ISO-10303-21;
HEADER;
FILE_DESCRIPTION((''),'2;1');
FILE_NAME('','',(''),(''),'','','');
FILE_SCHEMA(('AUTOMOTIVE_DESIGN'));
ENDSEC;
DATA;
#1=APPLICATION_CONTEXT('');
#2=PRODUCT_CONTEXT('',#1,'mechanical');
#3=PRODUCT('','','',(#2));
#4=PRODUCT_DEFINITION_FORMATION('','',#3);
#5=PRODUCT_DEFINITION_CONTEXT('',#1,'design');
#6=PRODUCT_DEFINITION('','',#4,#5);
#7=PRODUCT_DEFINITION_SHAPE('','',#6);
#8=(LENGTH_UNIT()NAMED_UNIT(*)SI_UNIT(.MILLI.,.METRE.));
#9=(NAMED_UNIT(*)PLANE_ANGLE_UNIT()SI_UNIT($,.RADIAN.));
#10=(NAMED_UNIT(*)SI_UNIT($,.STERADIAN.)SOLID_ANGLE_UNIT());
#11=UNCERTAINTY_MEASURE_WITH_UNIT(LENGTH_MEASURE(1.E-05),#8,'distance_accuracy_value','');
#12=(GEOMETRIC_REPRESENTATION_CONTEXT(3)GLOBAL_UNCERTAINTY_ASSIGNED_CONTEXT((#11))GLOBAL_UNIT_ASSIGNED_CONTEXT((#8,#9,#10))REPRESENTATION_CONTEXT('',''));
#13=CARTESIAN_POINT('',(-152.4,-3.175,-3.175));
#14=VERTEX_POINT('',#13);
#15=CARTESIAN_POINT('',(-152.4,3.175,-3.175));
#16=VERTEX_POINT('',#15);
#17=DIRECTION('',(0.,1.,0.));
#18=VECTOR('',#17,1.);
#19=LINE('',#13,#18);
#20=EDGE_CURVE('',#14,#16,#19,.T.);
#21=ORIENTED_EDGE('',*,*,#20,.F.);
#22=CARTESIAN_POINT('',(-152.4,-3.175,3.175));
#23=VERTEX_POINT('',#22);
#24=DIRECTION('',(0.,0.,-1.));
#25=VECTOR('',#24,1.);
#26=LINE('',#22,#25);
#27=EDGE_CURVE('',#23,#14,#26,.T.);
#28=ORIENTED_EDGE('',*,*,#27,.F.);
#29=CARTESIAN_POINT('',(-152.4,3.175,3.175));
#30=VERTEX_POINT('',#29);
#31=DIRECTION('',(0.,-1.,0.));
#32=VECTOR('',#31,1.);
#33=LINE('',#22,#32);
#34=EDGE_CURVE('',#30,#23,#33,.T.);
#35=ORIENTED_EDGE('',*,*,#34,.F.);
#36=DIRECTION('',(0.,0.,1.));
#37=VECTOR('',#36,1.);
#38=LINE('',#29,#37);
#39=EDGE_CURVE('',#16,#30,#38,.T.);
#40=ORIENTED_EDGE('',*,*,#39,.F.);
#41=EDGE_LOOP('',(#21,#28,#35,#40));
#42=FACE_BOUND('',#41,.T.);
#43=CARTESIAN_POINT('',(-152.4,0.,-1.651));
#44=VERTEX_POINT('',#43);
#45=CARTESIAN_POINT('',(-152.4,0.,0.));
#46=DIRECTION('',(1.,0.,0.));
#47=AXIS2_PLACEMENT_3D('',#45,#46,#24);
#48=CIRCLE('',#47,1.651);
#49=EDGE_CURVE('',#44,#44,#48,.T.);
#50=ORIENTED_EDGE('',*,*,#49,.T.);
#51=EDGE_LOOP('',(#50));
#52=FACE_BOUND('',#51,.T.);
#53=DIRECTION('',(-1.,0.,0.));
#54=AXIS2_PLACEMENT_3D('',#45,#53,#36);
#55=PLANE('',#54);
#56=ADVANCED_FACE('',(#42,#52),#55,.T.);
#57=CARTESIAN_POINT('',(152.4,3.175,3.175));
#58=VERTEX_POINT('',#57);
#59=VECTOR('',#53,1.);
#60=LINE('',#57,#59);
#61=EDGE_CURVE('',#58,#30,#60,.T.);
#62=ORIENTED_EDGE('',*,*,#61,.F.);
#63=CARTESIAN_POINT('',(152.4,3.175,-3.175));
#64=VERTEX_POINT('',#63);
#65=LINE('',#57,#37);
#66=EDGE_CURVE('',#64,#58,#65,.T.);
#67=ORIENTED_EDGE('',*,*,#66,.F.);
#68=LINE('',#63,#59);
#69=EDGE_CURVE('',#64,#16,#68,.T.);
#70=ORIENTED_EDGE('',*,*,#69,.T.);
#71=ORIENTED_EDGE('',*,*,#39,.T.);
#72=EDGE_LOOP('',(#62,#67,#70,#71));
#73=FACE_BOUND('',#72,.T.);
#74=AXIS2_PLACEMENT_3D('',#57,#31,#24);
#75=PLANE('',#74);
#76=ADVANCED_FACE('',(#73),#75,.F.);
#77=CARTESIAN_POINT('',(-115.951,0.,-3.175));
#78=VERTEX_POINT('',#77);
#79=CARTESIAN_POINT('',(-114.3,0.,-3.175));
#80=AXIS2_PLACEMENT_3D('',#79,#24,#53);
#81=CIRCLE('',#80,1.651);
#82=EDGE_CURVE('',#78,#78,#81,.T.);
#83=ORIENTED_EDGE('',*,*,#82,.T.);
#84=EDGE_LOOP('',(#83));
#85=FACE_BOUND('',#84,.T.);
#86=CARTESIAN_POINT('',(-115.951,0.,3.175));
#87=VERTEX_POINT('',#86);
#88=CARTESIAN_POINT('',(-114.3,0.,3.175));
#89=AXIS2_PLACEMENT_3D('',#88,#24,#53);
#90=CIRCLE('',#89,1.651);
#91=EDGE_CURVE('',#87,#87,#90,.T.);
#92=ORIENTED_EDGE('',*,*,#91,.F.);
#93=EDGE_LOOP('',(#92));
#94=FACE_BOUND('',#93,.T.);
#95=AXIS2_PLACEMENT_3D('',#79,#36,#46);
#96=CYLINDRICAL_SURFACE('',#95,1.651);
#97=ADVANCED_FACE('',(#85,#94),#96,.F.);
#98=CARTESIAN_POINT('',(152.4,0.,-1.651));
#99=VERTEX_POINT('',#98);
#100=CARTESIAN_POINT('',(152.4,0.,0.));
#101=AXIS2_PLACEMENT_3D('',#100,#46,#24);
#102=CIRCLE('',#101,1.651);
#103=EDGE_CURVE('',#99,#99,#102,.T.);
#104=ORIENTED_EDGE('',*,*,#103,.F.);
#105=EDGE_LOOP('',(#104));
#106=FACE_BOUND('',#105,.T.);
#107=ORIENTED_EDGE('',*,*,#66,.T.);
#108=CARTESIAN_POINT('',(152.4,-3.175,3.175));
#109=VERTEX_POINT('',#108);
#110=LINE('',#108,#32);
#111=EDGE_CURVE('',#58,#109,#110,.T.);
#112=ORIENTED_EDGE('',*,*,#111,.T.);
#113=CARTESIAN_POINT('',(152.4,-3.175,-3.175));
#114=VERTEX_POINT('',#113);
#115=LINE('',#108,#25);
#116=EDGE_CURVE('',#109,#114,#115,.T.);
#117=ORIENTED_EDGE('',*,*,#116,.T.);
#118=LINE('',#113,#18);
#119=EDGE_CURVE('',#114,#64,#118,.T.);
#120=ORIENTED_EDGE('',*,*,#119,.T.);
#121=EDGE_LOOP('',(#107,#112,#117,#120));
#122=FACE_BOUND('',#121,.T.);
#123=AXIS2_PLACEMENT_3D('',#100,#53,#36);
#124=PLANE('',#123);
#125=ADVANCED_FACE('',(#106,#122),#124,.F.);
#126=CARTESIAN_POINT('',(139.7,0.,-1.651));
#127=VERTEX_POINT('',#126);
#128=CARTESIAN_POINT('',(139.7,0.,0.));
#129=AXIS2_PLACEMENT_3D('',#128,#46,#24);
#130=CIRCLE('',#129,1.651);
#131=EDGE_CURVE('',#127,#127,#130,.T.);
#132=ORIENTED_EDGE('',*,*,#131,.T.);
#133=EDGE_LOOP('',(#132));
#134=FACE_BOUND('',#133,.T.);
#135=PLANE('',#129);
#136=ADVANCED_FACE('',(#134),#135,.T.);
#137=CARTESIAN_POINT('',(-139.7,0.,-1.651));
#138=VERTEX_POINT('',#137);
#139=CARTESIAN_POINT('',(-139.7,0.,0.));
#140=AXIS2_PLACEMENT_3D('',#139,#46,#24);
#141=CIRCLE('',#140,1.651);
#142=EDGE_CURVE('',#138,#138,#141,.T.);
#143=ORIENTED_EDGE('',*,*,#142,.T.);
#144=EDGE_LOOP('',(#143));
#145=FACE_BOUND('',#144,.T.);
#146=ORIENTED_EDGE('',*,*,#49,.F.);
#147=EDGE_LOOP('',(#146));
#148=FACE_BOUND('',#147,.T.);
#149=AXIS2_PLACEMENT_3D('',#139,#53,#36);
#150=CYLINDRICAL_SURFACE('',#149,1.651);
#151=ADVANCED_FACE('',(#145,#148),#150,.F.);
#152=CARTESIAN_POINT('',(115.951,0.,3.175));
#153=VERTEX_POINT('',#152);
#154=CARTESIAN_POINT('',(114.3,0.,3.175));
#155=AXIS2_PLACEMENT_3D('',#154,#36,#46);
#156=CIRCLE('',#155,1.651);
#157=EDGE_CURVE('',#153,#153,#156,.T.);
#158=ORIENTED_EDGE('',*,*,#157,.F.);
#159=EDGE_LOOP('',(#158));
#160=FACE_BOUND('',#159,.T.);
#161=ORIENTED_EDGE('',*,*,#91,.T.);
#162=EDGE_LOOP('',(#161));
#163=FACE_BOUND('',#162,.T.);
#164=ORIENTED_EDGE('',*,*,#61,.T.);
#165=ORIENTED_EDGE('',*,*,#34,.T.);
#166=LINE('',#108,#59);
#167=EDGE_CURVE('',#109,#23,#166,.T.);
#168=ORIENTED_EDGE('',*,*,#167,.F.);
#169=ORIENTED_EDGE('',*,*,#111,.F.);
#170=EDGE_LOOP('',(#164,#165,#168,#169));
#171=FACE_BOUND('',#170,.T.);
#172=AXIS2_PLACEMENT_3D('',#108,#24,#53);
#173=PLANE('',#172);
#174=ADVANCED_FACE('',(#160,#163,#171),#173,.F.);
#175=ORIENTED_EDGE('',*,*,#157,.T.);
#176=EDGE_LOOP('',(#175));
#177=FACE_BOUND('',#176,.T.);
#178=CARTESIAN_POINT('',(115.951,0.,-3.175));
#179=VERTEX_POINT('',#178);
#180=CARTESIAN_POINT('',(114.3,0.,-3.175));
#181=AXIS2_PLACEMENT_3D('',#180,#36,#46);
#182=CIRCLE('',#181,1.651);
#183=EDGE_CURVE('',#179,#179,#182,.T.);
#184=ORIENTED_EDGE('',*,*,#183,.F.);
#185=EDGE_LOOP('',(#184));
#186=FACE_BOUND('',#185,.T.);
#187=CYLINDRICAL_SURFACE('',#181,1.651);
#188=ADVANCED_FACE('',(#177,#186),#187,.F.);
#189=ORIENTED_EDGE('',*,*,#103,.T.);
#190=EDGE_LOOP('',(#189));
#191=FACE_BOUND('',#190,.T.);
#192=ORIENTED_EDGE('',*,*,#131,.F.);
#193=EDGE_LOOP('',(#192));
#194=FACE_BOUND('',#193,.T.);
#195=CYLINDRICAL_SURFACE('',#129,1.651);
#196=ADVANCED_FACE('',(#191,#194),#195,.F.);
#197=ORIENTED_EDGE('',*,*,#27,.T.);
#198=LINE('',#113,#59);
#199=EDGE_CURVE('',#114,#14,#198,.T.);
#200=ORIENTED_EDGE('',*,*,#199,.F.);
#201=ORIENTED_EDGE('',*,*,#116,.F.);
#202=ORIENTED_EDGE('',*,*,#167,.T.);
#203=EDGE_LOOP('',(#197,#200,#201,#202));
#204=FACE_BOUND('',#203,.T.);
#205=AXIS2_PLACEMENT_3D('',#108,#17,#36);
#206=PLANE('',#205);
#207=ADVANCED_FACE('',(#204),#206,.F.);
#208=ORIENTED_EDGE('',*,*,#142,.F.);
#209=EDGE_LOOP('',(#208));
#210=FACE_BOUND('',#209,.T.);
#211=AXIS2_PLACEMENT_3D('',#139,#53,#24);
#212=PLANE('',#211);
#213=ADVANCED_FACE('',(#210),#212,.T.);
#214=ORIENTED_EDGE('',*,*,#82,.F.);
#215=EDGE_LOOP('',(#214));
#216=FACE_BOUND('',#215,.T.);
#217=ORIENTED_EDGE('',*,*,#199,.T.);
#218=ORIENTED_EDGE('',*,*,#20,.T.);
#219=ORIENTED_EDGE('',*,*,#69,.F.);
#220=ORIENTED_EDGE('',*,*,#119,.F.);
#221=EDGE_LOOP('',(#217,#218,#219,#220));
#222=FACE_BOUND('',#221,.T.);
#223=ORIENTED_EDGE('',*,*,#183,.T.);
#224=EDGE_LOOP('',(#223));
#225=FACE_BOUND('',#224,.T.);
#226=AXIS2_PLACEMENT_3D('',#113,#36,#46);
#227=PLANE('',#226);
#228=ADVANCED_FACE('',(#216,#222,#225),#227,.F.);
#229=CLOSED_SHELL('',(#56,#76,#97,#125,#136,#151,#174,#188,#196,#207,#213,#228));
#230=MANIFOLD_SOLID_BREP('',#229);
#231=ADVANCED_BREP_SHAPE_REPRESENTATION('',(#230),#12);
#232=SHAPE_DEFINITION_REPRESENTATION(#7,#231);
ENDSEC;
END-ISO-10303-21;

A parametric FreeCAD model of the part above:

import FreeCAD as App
import Part
import Sketcher
Q = App.Units.Quantity

doc = App.newDocument("Part")
body = doc.addObject("PartDesign::Body", "Body")

sketch1 = body.newObject("Sketcher::SketchObject", "Sketch")
sketch1.AttachmentSupport = (doc.getObject("YZ_Plane"), [""])
sketch1.MapMode = "FlatFace"
sketch1.addGeometry(Part.LineSegment(App.Vector(3, 3, 0), App.Vector(-3, 3, 0)), False)
sketch1.addGeometry(Part.LineSegment(App.Vector(-3, 3, 0), App.Vector(-3, -3, 0)), False)
sketch1.addGeometry(Part.LineSegment(App.Vector(-3, -3, 0), App.Vector(3, -3, 0)), False)
sketch1.addGeometry(Part.LineSegment(App.Vector(3, -3, 0), App.Vector(3, 3, 0)), False)
sketch1.addConstraint(Sketcher.Constraint("Coincident", 0, 2, 1, 1))
sketch1.addConstraint(Sketcher.Constraint("Coincident", 1, 2, 2, 1))
sketch1.addConstraint(Sketcher.Constraint("Coincident", 2, 2, 3, 1))
sketch1.addConstraint(Sketcher.Constraint("Coincident", 3, 2, 0, 1))
sketch1.addConstraint(Sketcher.Constraint("Horizontal", 0))
sketch1.addConstraint(Sketcher.Constraint("Vertical", 1))
sketch1.addConstraint(Sketcher.Constraint("Horizontal", 2))
sketch1.addConstraint(Sketcher.Constraint("Vertical", 3))
sketch1.addConstraint(Sketcher.Constraint("Symmetric", 0, 2, 2, 2, -1, 1))
sketch1.addConstraint(Sketcher.Constraint("Equal", 2, 1))
sketch1.addConstraint(Sketcher.Constraint("DistanceX", 0, 2, 0, 1, Q("0.25 in")))
pad1 = body.newObject("PartDesign::Pad", "Pad")
pad1.Profile = sketch1
pad1.Length = Q("12 in")
pad1.Midplane = True

sketch2 = body.newObject("Sketcher::SketchObject", "Sketch001")
sketch2.AttachmentSupport = (doc.getObject("YZ_Plane"), [""])
sketch2.MapMode = "FlatFace"
sketch2.AttachmentOffset = App.Placement(App.Vector(0, 0, 6 * 25.4), App.Rotation())
sketch2.addGeometry(Part.Circle(App.Vector(0, 0, 0), App.Vector(0, 0, 1), 1.7), False)
sketch2.addConstraint(Sketcher.Constraint("Coincident", 0, 3, -1, 1))
sketch2.addConstraint(Sketcher.Constraint("Diameter", 0, Q("0.13 in")))
pocket1 = body.newObject("PartDesign::Pocket", "Pocket")
pocket1.Profile = sketch2
pocket1.Length = Q("0.5 in")

sketch3 = body.newObject("Sketcher::SketchObject", "Sketch002")
sketch3.AttachmentSupport = (doc.getObject("XY_Plane"), [""])
sketch3.MapMode = "FlatFace"
sketch3.AttachmentOffset = App.Placement(App.Vector(0, 0, 0.125 * 25.4), App.Rotation())
sketch3.addGeometry(Part.Circle(App.Vector(114.3, 0, 0), App.Vector(0, 0, 1), 1.7), False)
sketch3.addConstraint(Sketcher.Constraint("PointOnObject", 0, 3, -1))
sketch3.addConstraint(Sketcher.Constraint("Diameter", 0, Q("0.13 in")))
sketch3.addConstraint(Sketcher.Constraint("DistanceX", -1, 1, 0, 3, Q("4.5 in")))
pocket2 = body.newObject("PartDesign::Pocket", "Pocket001")
pocket2.Profile = sketch3
pocket2.Type = "ThroughAll"
doc.recompute()

mirrored = body.newObject("PartDesign::Mirrored", "Mirrored")
mirrored.Originals = [pocket1, pocket2]
mirrored.MirrorPlane = (doc.getObject("YZ_Plane"), [""])
body.Tip = mirrored

doc.recompute()
